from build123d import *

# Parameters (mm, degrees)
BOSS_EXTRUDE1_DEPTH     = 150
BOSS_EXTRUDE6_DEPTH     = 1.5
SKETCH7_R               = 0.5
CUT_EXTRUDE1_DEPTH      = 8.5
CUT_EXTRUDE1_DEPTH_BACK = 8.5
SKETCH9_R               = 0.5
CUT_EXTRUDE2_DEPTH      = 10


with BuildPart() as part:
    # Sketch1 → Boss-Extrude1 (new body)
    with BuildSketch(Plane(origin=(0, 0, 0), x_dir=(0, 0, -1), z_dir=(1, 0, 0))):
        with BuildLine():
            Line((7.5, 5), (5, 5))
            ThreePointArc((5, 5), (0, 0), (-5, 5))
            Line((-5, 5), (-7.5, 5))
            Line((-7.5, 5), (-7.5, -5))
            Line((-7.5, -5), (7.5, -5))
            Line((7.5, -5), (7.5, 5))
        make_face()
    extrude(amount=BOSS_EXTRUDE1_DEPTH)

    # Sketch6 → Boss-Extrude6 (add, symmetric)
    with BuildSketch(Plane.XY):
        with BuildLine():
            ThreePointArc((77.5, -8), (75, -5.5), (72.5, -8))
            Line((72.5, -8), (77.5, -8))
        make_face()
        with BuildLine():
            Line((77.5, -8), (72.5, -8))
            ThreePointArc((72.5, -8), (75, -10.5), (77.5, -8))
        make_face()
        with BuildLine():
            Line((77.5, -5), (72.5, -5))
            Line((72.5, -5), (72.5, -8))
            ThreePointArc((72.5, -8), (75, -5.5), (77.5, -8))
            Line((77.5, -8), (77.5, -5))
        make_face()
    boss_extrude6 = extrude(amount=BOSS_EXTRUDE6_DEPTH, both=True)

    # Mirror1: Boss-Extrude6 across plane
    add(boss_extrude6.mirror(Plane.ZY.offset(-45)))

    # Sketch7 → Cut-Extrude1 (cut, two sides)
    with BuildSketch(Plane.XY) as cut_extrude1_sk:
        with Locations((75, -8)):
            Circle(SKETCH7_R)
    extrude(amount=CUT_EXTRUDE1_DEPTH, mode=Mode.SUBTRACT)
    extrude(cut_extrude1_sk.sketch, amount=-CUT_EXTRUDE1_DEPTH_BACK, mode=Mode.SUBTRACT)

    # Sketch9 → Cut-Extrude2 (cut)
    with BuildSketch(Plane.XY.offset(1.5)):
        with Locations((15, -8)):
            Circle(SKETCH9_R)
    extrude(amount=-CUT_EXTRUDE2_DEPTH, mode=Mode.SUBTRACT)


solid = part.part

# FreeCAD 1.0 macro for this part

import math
import FreeCAD as App
import Part
import Sketcher

V = App.Vector

doc = App.newDocument("Part")
params = doc.addObject("Spreadsheet::Sheet", "Params")
for row, (alias, value) in enumerate([
    ("sketch1_radius", "5 mm"),
    ("sketch1_width", "10 mm"),
    ("sketch1_height", "15 mm"),
    ("pad1_length", "150 mm"),
    ("sketch2_radius", "2.5 mm"),
    ("sketch2_height", "3 mm"),
    ("pad2_length", "3 mm"),
    ("sketch3_diameter", "1 mm"),
    ("sketch4_diameter", "1 mm"),
    ("pocket2_length", "10 mm"),
], start=1):
    params.set(f"A{row}", alias)
    params.set(f"B{row}", "=" + value)
    params.setAlias(f"B{row}", alias)

body = doc.addObject("PartDesign::Body", "Body")

sketch1 = doc.addObject("Sketcher::SketchObject", "Sketch")
body.addObject(sketch1)
sketch1.AttachmentSupport = (doc.YZ_Plane, [""])
sketch1.MapMode = "FlatFace"
sketch1.addGeometry([
    Part.LineSegment(V(5, -7.5, 0), V(5, -5, 0)),
    Part.ArcOfCircle(Part.Circle(V(5, 0, 0), V(0, 0, 1), 5), math.radians(90), math.radians(270)),
    Part.LineSegment(V(5, 5, 0), V(5, 7.5, 0)),
    Part.LineSegment(V(5, 7.5, 0), V(-5, 7.5, 0)),
    Part.LineSegment(V(-5, 7.5, 0), V(-5, -7.5, 0)),
    Part.LineSegment(V(-5, -7.5, 0), V(5, -7.5, 0)),
], False)
sketch1.addConstraint([
    Sketcher.Constraint("Coincident", 0, 2, 1, 2),
    Sketcher.Constraint("Coincident", 1, 1, 2, 1),
    Sketcher.Constraint("Coincident", 2, 2, 3, 1),
    Sketcher.Constraint("Coincident", 3, 2, 4, 1),
    Sketcher.Constraint("Coincident", 4, 2, 5, 1),
    Sketcher.Constraint("Coincident", 5, 2, 0, 1),
    Sketcher.Constraint("Vertical", 0),
    Sketcher.Constraint("Vertical", 2),
    Sketcher.Constraint("Horizontal", 3),
    Sketcher.Constraint("Vertical", 4),
    Sketcher.Constraint("Horizontal", 5),
    Sketcher.Constraint("Symmetric", 2, 2, 4, 2, -1, 1),
    Sketcher.Constraint("Symmetric", 0, 2, 1, 1, -1),
    Sketcher.Constraint("Vertical", 1, 3, 0, 2),
    Sketcher.Constraint("Radius", 1, 5.0),
    Sketcher.Constraint("DistanceX", 3, 2, 3, 1, 10.0),
    Sketcher.Constraint("DistanceY", 4, 2, 4, 1, 15.0),
])
sketch1.setExpression("Constraints[14]", "Params.sketch1_radius")
sketch1.setExpression("Constraints[15]", "Params.sketch1_width")
sketch1.setExpression("Constraints[16]", "Params.sketch1_height")
pad1 = doc.addObject("PartDesign::Pad", "Pad")
body.addObject(pad1)
pad1.Profile = sketch1
pad1.setExpression("Length", "Params.pad1_length")

sketch2 = doc.addObject("Sketcher::SketchObject", "Sketch001")
body.addObject(sketch2)
sketch2.AttachmentSupport = (doc.XY_Plane, [""])
sketch2.MapMode = "FlatFace"
sketch2.addGeometry([
    Part.ArcOfCircle(Part.Circle(V(75, -8, 0), V(0, 0, 1), 2.5), math.radians(180), math.radians(360)),
    Part.LineSegment(V(77.5, -8, 0), V(77.5, -5, 0)),
    Part.LineSegment(V(77.5, -5, 0), V(72.5, -5, 0)),
    Part.LineSegment(V(72.5, -5, 0), V(72.5, -8, 0)),
], False)
sketch2.addConstraint([
    Sketcher.Constraint("Tangent", 0, 2, 1, 1),
    Sketcher.Constraint("Coincident", 1, 2, 2, 1),
    Sketcher.Constraint("Coincident", 2, 2, 3, 1),
    Sketcher.Constraint("Tangent", 3, 2, 0, 1),
    Sketcher.Constraint("Vertical", 1),
    Sketcher.Constraint("Horizontal", 2),
    Sketcher.Constraint("Vertical", 3),
    Sketcher.Constraint("Radius", 0, 2.5),
    Sketcher.Constraint("DistanceY", 1, 1, 1, 2, 3.0),
    Sketcher.Constraint("DistanceX", -1, 1, 0, 3, 75.0),
    Sketcher.Constraint("DistanceY", 0, 3, -1, 1, 8.0),
])
sketch2.setExpression("Constraints[7]", "Params.sketch2_radius")
sketch2.setExpression("Constraints[8]", "Params.sketch2_height")
pad2 = doc.addObject("PartDesign::Pad", "Pad001")
body.addObject(pad2)
pad2.Profile = sketch2
pad2.setExpression("Length", "Params.pad2_length")
pad2.Midplane = True
doc.recompute()

datumplane = doc.addObject("PartDesign::Plane", "DatumPlane")
body.addObject(datumplane)
datumplane.AttachmentSupport = (doc.YZ_Plane, [""])
datumplane.MapMode = "FlatFace"
datumplane.AttachmentOffset = App.Placement(V(0, 0, 45), App.Rotation())
mirrored = doc.addObject("PartDesign::Mirrored", "Mirrored")
body.addObject(mirrored)
mirrored.Originals = [pad2]
mirrored.MirrorPlane = (datumplane, [""])
body.Tip = mirrored

sketch3 = doc.addObject("Sketcher::SketchObject", "Sketch002")
body.addObject(sketch3)
sketch3.AttachmentSupport = (doc.XY_Plane, [""])
sketch3.MapMode = "FlatFace"
sketch3.addGeometry(Part.Circle(V(75, -8, 0), V(0, 0, 1), 0.5), False)
sketch3.addConstraint([
    Sketcher.Constraint("Diameter", 0, 1.0),
    Sketcher.Constraint("DistanceX", -1, 1, 0, 3, 75.0),
    Sketcher.Constraint("DistanceY", 0, 3, -1, 1, 8.0),
])
sketch3.setExpression("Constraints[0]", "Params.sketch3_diameter")
pocket1 = doc.addObject("PartDesign::Pocket", "Pocket")
body.addObject(pocket1)
pocket1.Profile = sketch3
pocket1.Type = "ThroughAll"
pocket1.Midplane = True

sketch4 = doc.addObject("Sketcher::SketchObject", "Sketch003")
body.addObject(sketch4)
sketch4.AttachmentSupport = (doc.XY_Plane, [""])
sketch4.MapMode = "FlatFace"
sketch4.AttachmentOffset = App.Placement(V(0, 0, 1.5), App.Rotation())
sketch4.addGeometry(Part.Circle(V(15, -8, 0), V(0, 0, 1), 0.5), False)
sketch4.addConstraint([
    Sketcher.Constraint("Diameter", 0, 1.0),
    Sketcher.Constraint("DistanceX", -1, 1, 0, 3, 15.0),
    Sketcher.Constraint("DistanceY", 0, 3, -1, 1, 8.0),
])
sketch4.setExpression("Constraints[0]", "Params.sketch4_diameter")
pocket2 = doc.addObject("PartDesign::Pocket", "Pocket001")
body.addObject(pocket2)
pocket2.Profile = sketch4
pocket2.setExpression("Length", "Params.pocket2_length")

doc.recompute()
